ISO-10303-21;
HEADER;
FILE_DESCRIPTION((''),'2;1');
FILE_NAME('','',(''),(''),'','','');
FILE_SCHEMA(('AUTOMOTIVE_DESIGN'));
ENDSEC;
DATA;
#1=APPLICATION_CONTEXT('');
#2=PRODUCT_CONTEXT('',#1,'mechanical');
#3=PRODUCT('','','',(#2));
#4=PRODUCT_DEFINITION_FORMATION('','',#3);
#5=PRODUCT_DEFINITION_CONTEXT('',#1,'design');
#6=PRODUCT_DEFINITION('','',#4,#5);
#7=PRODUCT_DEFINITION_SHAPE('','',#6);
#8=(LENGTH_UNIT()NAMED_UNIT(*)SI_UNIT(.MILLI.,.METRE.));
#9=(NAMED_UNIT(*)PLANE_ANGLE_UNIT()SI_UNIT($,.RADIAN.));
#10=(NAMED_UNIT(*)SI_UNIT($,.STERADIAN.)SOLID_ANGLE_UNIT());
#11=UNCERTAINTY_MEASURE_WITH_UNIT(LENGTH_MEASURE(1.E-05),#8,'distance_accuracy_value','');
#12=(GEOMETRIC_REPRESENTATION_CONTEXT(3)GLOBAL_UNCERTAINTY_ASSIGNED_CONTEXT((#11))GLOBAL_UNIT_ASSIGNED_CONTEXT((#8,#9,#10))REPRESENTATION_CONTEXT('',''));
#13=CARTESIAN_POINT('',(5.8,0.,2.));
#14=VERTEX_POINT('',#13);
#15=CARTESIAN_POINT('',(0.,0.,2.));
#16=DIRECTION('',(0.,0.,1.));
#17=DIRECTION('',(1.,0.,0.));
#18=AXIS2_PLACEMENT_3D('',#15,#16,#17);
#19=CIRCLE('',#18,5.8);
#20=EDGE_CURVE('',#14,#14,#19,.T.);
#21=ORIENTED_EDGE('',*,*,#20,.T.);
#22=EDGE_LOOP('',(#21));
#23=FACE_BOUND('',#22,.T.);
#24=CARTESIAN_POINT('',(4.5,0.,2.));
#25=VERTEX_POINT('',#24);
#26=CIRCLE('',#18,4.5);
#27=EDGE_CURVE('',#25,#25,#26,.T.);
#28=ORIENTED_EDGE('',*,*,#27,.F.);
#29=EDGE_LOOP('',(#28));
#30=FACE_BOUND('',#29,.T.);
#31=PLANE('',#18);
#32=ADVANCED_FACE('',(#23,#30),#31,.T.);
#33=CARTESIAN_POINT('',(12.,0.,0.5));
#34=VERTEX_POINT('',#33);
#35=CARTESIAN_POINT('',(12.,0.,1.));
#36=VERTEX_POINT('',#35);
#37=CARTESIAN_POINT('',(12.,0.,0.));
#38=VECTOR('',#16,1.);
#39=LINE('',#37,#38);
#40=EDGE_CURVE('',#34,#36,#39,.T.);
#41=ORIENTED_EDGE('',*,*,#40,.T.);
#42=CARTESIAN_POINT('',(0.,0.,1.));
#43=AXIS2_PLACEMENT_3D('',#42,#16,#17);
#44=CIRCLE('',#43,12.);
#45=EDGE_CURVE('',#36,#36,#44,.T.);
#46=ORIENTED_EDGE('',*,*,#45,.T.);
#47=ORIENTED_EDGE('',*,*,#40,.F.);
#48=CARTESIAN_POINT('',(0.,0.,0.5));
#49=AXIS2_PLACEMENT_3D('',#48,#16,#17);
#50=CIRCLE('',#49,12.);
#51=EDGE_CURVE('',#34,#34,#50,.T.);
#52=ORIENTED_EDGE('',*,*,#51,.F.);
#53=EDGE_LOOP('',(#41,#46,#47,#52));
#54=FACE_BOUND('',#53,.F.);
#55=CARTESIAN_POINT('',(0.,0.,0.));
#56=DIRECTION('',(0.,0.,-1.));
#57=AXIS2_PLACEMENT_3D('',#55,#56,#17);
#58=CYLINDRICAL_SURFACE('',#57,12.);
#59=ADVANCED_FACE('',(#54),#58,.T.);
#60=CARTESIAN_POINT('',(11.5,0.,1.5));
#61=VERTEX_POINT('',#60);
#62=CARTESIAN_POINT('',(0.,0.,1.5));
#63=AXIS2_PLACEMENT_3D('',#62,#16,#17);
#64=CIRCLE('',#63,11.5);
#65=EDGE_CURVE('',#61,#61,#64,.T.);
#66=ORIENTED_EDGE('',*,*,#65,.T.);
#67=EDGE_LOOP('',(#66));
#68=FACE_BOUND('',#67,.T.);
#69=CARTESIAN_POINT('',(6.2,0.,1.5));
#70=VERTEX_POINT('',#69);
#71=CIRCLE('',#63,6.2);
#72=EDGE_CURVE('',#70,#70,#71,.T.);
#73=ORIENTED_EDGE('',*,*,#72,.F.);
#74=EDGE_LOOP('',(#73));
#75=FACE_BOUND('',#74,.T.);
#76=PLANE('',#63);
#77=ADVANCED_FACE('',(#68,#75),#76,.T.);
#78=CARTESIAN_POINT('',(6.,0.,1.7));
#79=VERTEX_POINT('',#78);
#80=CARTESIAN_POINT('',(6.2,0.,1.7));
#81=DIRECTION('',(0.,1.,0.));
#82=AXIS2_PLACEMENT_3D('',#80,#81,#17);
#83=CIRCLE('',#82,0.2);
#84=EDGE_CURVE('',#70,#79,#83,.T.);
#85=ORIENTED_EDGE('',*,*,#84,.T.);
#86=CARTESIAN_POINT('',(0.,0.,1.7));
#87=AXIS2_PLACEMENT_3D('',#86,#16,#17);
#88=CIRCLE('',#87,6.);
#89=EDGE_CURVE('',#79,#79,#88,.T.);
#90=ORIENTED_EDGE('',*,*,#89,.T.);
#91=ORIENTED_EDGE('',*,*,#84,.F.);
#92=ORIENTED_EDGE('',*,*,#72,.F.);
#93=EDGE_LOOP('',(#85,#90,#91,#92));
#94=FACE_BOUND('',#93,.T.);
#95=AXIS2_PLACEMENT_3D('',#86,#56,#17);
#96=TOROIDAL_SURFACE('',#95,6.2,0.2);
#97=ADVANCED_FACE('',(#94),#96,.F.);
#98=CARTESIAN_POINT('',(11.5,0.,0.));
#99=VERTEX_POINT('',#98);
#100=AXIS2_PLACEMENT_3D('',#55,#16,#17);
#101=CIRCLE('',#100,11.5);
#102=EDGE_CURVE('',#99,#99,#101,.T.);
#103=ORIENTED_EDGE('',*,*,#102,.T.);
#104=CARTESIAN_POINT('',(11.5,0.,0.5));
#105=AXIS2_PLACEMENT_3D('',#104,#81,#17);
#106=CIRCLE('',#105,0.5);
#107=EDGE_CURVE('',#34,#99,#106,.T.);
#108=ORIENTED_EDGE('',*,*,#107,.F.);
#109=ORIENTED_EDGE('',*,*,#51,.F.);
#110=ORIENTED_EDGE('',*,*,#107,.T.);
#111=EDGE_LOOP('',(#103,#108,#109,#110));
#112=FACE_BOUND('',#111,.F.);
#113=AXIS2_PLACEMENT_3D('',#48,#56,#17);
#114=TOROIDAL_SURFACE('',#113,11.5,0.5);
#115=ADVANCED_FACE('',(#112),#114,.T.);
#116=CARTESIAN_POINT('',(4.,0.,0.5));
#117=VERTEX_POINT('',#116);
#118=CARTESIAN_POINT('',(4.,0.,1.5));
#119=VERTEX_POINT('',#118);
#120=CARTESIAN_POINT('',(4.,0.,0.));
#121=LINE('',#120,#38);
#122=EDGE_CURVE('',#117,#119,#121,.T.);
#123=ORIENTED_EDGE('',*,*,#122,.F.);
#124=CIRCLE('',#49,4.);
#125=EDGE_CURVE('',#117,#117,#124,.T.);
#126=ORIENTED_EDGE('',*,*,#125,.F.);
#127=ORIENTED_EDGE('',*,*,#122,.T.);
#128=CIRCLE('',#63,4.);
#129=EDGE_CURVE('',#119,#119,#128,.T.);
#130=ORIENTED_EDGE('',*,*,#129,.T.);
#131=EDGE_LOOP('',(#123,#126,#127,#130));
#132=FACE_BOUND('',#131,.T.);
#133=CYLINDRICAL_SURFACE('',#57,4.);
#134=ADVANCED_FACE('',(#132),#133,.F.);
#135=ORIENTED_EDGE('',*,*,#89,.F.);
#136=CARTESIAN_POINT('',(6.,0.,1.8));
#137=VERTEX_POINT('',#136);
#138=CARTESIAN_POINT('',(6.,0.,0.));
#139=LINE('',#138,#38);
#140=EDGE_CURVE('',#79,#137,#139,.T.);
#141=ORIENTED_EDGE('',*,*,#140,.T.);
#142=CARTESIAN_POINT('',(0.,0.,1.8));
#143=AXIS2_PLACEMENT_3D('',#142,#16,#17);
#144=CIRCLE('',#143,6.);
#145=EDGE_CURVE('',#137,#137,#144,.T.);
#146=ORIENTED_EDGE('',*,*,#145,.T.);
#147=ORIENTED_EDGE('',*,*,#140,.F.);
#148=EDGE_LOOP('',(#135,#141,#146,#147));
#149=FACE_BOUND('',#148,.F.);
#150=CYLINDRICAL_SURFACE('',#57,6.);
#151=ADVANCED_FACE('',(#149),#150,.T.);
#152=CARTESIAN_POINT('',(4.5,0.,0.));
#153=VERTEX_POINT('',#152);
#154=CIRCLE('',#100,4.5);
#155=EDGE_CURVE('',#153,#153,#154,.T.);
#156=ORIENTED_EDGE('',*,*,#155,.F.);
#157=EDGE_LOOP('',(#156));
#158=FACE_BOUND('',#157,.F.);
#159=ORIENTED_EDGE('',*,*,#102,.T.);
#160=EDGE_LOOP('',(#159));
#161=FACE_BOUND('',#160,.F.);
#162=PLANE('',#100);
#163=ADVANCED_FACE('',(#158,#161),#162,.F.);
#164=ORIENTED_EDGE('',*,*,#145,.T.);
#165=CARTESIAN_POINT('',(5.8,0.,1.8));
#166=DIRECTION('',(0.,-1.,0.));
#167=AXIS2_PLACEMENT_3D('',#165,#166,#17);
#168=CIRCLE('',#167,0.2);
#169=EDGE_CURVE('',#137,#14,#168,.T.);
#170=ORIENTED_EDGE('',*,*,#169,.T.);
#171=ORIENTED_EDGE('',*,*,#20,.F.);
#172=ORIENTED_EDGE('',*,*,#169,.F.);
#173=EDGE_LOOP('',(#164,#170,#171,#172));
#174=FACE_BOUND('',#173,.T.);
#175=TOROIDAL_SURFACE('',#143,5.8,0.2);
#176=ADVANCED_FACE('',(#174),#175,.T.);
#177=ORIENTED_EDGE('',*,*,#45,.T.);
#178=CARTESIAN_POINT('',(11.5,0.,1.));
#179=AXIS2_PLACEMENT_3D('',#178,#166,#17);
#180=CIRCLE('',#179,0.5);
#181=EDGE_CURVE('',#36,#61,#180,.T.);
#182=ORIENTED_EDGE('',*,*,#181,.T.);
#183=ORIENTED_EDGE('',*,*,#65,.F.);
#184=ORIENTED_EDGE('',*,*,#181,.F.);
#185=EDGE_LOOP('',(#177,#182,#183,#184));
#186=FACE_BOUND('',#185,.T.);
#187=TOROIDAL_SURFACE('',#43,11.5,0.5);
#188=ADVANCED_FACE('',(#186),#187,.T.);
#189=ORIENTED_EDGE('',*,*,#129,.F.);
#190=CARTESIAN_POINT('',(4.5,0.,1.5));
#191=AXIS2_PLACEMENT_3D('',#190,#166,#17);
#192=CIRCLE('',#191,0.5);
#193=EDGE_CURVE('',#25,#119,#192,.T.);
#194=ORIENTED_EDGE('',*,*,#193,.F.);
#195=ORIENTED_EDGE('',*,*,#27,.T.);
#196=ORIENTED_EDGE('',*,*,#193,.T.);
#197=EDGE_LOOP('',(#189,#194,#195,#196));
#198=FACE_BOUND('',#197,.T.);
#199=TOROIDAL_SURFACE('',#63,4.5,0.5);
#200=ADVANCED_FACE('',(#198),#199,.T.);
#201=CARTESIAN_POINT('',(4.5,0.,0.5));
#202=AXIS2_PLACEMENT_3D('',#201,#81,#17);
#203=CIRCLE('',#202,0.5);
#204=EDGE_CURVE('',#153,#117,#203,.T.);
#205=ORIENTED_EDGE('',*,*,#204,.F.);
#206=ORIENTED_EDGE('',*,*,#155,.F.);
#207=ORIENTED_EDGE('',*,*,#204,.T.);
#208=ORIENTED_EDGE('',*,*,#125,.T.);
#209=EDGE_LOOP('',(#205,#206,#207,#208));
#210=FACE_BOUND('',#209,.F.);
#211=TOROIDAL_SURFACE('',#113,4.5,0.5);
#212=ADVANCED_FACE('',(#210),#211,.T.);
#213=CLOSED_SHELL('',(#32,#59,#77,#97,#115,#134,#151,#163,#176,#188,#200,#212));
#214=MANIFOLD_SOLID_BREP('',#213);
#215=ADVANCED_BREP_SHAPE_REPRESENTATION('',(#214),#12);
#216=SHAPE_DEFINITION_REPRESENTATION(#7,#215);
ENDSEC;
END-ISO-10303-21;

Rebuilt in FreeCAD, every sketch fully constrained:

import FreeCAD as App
import Part
import Sketcher
from FreeCAD import Vector


def edges_at(feature, points):
    """Names of the edges that pass closest to the given points."""
    edges = feature.Shape.Edges
    near = lambda p: min(range(len(edges)), key=lambda i: edges[i].distToShape(Part.Vertex(*p))[0])
    return sorted({f"Edge{near(p) + 1}" for p in points})

doc = App.newDocument("Part")
body = doc.addObject("PartDesign::Body", "Body")

# Sketch on XY plane
sketch1 = body.newObject("Sketcher::SketchObject", "Sketch")
sketch1.AttachmentSupport = (doc.getObject("XY_Plane"), [""])
sketch1.MapMode = "FlatFace"
sketch1.addGeometry(Part.Circle(Vector(0, 0, 0), Vector(0, 0, 1), 6), False)
sketch1.addGeometry(Part.Circle(Vector(0, 0, 0), Vector(0, 0, 1), 4), False)
sketch1.addConstraint(Sketcher.Constraint("Coincident", 0, 3, -1, 1))
sketch1.addConstraint(Sketcher.Constraint("Coincident", 1, 3, -1, 1))
sketch1.addConstraint(Sketcher.Constraint("Diameter", 0, 12.0))
sketch1.addConstraint(Sketcher.Constraint("Diameter", 1, 8.0))
pad1 = body.newObject("PartDesign::Pad", "Pad")
pad1.Profile = sketch1
pad1.Length = 2

# Sketch on XY plane
sketch2 = body.newObject("Sketcher::SketchObject", "Sketch001")
sketch2.AttachmentSupport = (doc.getObject("XY_Plane"), [""])
sketch2.MapMode = "FlatFace"
sketch2.addGeometry(Part.Circle(Vector(0, 0, 0), Vector(0, 0, 1), 12), False)
sketch2.addGeometry(Part.Circle(Vector(0, 0, 0), Vector(0, 0, 1), 6), False)
sketch2.addConstraint(Sketcher.Constraint("Coincident", 0, 3, -1, 1))
sketch2.addConstraint(Sketcher.Constraint("Coincident", 1, 3, -1, 1))
sketch2.addConstraint(Sketcher.Constraint("Diameter", 0, 24.0))
sketch2.addConstraint(Sketcher.Constraint("Diameter", 1, 12.0))
pad2 = body.newObject("PartDesign::Pad", "Pad001")
pad2.Profile = sketch2
pad2.Length = 1.5
doc.recompute()

fillet = body.newObject("PartDesign::Fillet", "Fillet")
fillet.Base = (pad2, edges_at(pad2, [(-12, 0, 1.5)]))
fillet.Radius = 0.5
doc.recompute()

fillet2 = body.newObject("PartDesign::Fillet", "Fillet001")
fillet2.Base = (fillet, edges_at(fillet, [(-6, 0, 1.5), (-6, 0, 2)]))
fillet2.Radius = 0.2
doc.recompute()

fillet3 = body.newObject("PartDesign::Fillet", "Fillet002")
fillet3.Base = (fillet2, edges_at(fillet2, [(-12, 0, 0), (-4, 0, 0), (-4, 0, 2)]))
fillet3.Radius = 0.5

doc.recompute()
